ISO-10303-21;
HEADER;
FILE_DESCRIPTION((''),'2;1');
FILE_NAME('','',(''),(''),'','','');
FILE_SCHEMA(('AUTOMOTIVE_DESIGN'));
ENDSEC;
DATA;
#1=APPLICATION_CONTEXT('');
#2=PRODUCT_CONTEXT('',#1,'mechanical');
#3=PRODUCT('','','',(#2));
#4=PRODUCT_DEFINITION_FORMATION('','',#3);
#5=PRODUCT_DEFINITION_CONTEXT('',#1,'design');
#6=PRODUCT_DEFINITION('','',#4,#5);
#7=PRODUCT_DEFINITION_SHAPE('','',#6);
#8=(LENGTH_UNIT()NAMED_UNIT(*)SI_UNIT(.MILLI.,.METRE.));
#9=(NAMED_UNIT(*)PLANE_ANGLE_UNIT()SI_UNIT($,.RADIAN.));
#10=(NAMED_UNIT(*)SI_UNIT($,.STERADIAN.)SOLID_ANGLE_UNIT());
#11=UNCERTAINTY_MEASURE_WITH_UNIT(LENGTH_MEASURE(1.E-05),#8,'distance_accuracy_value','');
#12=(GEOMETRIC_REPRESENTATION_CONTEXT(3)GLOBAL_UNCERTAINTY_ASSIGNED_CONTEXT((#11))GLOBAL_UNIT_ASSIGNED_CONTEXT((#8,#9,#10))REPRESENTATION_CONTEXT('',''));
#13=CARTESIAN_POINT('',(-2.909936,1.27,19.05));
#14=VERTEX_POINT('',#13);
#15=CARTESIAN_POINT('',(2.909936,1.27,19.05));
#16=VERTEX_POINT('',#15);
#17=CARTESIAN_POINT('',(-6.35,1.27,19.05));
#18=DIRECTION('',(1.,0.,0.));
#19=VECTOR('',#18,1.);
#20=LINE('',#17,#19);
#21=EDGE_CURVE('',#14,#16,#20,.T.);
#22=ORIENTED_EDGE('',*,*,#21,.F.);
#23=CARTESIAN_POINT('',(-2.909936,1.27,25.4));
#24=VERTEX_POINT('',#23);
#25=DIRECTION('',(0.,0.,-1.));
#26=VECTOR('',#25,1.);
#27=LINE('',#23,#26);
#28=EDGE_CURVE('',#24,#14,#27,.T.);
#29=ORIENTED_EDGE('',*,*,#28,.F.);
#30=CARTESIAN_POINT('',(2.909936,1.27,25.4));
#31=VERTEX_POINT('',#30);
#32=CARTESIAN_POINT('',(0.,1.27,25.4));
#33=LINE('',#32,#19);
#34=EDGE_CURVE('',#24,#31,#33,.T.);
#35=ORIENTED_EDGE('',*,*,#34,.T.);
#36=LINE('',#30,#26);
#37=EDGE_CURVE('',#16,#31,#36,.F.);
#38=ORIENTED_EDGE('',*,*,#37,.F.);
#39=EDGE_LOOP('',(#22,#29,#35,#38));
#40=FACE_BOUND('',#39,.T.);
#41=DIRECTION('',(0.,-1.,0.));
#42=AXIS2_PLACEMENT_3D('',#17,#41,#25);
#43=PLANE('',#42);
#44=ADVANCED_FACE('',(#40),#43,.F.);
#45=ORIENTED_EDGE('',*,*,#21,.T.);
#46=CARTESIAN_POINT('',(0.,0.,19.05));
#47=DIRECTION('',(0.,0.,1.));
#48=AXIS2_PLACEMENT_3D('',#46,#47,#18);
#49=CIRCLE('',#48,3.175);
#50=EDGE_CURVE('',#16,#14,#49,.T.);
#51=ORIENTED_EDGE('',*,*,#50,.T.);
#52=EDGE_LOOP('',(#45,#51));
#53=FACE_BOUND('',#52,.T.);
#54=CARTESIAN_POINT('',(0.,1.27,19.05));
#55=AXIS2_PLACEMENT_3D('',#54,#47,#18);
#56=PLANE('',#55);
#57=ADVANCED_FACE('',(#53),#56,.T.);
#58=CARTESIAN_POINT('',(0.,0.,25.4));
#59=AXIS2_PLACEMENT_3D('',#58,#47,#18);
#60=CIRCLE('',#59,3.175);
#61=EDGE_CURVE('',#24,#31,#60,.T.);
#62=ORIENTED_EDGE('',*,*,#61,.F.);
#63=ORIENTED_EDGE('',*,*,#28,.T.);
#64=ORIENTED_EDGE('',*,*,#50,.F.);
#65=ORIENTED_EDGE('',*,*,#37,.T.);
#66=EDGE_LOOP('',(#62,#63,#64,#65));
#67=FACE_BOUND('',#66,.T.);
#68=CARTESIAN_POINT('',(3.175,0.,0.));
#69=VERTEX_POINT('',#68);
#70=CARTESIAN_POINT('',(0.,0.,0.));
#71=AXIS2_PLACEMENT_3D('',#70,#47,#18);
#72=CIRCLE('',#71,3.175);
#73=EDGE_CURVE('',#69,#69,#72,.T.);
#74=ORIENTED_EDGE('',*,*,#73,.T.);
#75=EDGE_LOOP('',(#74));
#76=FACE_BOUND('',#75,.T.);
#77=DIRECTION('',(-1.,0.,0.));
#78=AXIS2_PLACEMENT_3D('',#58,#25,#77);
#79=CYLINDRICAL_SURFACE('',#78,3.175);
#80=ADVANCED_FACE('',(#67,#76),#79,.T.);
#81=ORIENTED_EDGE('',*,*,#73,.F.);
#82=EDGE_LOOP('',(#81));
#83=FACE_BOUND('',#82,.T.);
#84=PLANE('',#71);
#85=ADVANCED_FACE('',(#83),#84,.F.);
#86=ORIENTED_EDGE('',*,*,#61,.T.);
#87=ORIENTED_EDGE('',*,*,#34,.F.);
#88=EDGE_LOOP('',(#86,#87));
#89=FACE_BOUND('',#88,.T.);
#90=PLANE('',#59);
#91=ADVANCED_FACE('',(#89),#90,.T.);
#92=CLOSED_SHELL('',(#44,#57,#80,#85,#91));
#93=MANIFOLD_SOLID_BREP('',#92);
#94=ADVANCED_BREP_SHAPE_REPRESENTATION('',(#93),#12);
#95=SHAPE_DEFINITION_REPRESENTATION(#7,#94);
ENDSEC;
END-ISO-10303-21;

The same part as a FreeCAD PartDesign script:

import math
import FreeCAD as App
import Part
import Sketcher
from FreeCAD import Vector
Q = App.Units.Quantity

doc = App.newDocument("Part")
body = doc.addObject("PartDesign::Body", "Body")

sketch1 = body.newObject("Sketcher::SketchObject", "Sketch")
sketch1.AttachmentSupport = (doc.getObject("XY_Plane"), [""])
sketch1.MapMode = "FlatFace"
sketch1.addGeometry(Part.Circle(Vector(0, 0, 0), Vector(0, 0, 1), 3.2), False)
sketch1.addConstraint(Sketcher.Constraint("Coincident", 0, 3, -1, 1))
sketch1.addConstraint(Sketcher.Constraint("Diameter", 0, Q("0.25 in")))
pad1 = body.newObject("PartDesign::Pad", "Pad")
pad1.Profile = sketch1
pad1.Length = Q("1 in")

sketch2 = body.newObject("Sketcher::SketchObject", "Sketch001")
sketch2.AttachmentSupport = (doc.getObject("XY_Plane"), [""])
sketch2.MapMode = "FlatFace"
sketch2.AttachmentOffset = App.Placement(Vector(0, 0, 1 * 25.4), App.Rotation())
sketch2.addGeometry(Part.LineSegment(Vector(-6, 1, 0), Vector(6, 1, 0)), False)
sketch2.addGeometry(Part.ArcOfCircle(Part.Circle(Vector(0, 1, 0), Vector(0, 0, 1), 6), math.radians(0), math.radians(180)), False)
sketch2.addConstraint(Sketcher.Constraint("Coincident", 0, 1, 1, 2))
sketch2.addConstraint(Sketcher.Constraint("Coincident", 1, 1, 0, 2))
sketch2.addConstraint(Sketcher.Constraint("Horizontal", 0))
sketch2.addConstraint(Sketcher.Constraint("PointOnObject", 1, 3, -2))
sketch2.addConstraint(Sketcher.Constraint("Horizontal", 1, 3, 0, 1))
sketch2.addConstraint(Sketcher.Constraint("Radius", 1, Q("0.25 in")))
sketch2.addConstraint(Sketcher.Constraint("DistanceY", -1, 1, 1, 3, Q("0.05 in")))
pocket1 = body.newObject("PartDesign::Pocket", "Pocket")
pocket1.Profile = sketch2
pocket1.Length = Q("0.25 in")

doc.recompute()
